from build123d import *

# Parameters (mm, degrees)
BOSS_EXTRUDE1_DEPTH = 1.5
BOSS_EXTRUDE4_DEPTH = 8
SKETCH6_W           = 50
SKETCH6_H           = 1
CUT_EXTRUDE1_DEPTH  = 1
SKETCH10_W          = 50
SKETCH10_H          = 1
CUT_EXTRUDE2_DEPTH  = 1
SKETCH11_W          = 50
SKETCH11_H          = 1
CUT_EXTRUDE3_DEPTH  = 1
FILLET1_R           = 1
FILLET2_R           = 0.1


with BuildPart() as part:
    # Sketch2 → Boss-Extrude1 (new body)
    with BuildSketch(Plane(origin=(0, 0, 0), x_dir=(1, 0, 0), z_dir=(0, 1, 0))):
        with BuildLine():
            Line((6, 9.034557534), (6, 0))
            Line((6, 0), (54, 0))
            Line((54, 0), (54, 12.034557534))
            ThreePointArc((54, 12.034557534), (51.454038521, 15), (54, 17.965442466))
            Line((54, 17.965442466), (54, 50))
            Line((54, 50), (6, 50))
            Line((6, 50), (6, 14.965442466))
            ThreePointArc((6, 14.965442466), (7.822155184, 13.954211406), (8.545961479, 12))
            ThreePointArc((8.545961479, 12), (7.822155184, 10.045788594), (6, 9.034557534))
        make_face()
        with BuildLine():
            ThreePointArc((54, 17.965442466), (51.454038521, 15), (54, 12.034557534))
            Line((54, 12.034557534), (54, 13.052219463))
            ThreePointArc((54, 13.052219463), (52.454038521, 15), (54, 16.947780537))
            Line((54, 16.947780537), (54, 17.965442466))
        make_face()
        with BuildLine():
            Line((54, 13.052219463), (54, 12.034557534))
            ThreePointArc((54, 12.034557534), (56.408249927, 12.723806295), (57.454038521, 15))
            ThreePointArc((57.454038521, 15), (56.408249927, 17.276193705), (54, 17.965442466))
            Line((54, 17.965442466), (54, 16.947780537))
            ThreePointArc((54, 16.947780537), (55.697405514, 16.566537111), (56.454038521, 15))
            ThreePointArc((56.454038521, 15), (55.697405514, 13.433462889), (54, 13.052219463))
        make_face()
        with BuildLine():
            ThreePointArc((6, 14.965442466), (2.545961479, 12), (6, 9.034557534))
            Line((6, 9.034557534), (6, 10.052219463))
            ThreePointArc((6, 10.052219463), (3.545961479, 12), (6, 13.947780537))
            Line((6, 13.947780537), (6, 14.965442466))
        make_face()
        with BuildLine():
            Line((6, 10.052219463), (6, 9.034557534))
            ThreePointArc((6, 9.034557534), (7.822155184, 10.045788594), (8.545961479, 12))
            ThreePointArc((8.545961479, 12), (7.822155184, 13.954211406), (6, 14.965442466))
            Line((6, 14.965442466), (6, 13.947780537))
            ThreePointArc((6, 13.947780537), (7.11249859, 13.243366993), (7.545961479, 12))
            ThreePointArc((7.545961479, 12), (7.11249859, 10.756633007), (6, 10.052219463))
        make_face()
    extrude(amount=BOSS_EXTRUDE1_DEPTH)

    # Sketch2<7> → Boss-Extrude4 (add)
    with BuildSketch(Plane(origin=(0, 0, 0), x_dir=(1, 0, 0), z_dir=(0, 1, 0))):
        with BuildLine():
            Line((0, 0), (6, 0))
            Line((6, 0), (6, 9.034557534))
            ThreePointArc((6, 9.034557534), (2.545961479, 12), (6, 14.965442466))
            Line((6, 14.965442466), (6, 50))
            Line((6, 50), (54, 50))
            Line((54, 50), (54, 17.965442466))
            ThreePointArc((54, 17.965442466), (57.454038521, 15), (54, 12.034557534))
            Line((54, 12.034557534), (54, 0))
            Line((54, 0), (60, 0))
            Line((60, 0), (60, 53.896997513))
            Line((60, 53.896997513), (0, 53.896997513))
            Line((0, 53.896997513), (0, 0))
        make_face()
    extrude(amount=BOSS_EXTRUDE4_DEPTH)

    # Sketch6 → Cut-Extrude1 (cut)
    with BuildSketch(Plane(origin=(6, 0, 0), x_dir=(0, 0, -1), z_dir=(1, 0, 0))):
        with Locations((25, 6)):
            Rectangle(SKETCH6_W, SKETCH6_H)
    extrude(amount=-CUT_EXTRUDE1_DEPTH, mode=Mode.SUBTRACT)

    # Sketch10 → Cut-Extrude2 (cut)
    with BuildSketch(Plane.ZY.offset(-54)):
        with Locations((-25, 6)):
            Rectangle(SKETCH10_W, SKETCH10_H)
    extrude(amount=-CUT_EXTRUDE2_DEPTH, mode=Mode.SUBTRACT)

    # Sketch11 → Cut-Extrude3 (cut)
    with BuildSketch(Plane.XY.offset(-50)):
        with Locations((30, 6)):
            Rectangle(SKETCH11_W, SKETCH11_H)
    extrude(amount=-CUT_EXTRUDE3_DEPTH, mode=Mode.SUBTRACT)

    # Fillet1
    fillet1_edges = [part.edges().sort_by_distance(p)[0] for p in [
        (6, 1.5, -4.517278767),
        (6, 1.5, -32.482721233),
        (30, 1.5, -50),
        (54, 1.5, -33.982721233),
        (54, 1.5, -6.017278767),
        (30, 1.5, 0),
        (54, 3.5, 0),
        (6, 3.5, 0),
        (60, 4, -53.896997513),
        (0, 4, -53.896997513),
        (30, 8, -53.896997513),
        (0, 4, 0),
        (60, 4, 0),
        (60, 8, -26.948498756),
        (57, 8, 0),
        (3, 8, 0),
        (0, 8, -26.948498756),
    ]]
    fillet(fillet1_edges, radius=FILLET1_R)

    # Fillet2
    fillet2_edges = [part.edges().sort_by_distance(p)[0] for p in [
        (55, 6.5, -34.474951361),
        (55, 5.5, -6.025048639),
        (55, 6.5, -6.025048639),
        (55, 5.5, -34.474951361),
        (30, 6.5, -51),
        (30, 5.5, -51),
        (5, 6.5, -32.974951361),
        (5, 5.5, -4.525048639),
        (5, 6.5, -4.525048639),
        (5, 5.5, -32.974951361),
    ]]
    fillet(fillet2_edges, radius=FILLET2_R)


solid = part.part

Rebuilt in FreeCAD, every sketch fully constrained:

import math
import FreeCAD as App
import Part
import Sketcher

V = App.Vector


def edges_at(feature, points):
    """Names of the edges that pass closest to the given points."""
    edges = feature.Shape.Edges
    near = lambda p: min(range(len(edges)), key=lambda i: edges[i].distToShape(Part.Vertex(*p))[0])
    return sorted({f"Edge{near(p) + 1}" for p in points})

doc = App.newDocument("Part")
body = doc.addObject("PartDesign::Body", "Body")

# Sketch on XZ plane
sketch1 = body.newObject("Sketcher::SketchObject", "Sketch")
sketch1.AttachmentSupport = (doc.getObject("XZ_Plane"), [""])
sketch1.MapMode = "FlatFace"
sketch1.addGeometry([
    Part.ArcOfCircle(Part.Circle(V(5.545961, -12, 0), V(0, 0, 1), 3), math.radians(81.295053), math.radians(278.704947)),  # 0
    Part.LineSegment(V(6, -9.034558, 0), V(6, 0, 0)),  # 1
    Part.LineSegment(V(6, 0, 0), V(54, 0, 0)),  # 2
    Part.LineSegment(V(54, 0, 0), V(54, -12.034558, 0)),  # 3
    Part.ArcOfCircle(Part.Circle(V(54.454039, -15, 0), V(0, 0, 1), 3), math.radians(0), math.radians(98.704947)),  # 4
    Part.ArcOfCircle(Part.Circle(V(54.454039, -15, 0), V(0, 0, 1), 3), math.radians(-98.704947), math.radians(0)),  # 5
    Part.LineSegment(V(54, -17.965442, 0), V(54, -50, 0)),  # 6
    Part.LineSegment(V(54, -50, 0), V(6, -50, 0)),  # 7
    Part.LineSegment(V(6, -50, 0), V(6, -14.965442, 0)),  # 8
    Part.ArcOfCircle(Part.Circle(V(5.545961, -12, 0), V(0, 0, 1), 2), math.radians(-76.878354), math.radians(0)),  # 9
    Part.ArcOfCircle(Part.Circle(V(5.545961, -12, 0), V(0, 0, 1), 2), math.radians(0), math.radians(76.878354)),  # 10
    Part.ArcOfCircle(Part.Circle(V(5.545961, -12, 0), V(0, 0, 1), 2), math.radians(76.878354), math.radians(283.121646)),  # 11
    Part.ArcOfCircle(Part.Circle(V(54.454039, -15, 0), V(0, 0, 1), 2), math.radians(0), math.radians(103.121646)),  # 12
    Part.ArcOfCircle(Part.Circle(V(54.454039, -15, 0), V(0, 0, 1), 2), math.radians(103.121646), math.radians(256.878354)),  # 13
    Part.ArcOfCircle(Part.Circle(V(54.454039, -15, 0), V(0, 0, 1), 2), math.radians(-103.121646), math.radians(0)),  # 14
], False)
sketch1.addConstraint([
    Sketcher.Constraint("Coincident", 0, 1, 1, 1),
    Sketcher.Constraint("Coincident", 1, 2, 2, 1),
    Sketcher.Constraint("Coincident", 2, 2, 3, 1),
    Sketcher.Constraint("Coincident", 3, 2, 4, 2),
    Sketcher.Constraint("Tangent", 4, 1, 5, 2),
    Sketcher.Constraint("Coincident", 5, 1, 6, 1),
    Sketcher.Constraint("Coincident", 6, 2, 7, 1),
    Sketcher.Constraint("Coincident", 7, 2, 8, 1),
    Sketcher.Constraint("Coincident", 8, 2, 0, 2),
    Sketcher.Constraint("Tangent", 9, 2, 10, 1),
    Sketcher.Constraint("Tangent", 10, 2, 11, 1),
    Sketcher.Constraint("Tangent", 11, 2, 9, 1),
    Sketcher.Constraint("Tangent", 12, 2, 13, 1),
    Sketcher.Constraint("Tangent", 13, 2, 14, 1),
    Sketcher.Constraint("Tangent", 14, 2, 12, 1),
    Sketcher.Constraint("Vertical", 1),
    Sketcher.Constraint("Horizontal", 2),
    Sketcher.Constraint("Vertical", 3),
    Sketcher.Constraint("Vertical", 6),
    Sketcher.Constraint("Horizontal", 7),
    Sketcher.Constraint("Vertical", 8),
    Sketcher.Constraint("Coincident", 9, 3, 0, 3),
    Sketcher.Constraint("Coincident", 12, 3, 4, 3),
    Sketcher.Constraint("Equal", 0, 4),
    Sketcher.Constraint("Equal", 4, 5),
    Sketcher.Constraint("Equal", 11, 12),
    Sketcher.Constraint("PointOnObject", 1, 2, -1),
    Sketcher.Constraint("Horizontal", 14, 3, 4, 1),
    Sketcher.Constraint("Horizontal", 11, 3, 9, 2),
    Sketcher.Constraint("Horizontal", 4, 1, 14, 2),
    Sketcher.Constraint("Vertical", 3, 2, 5, 1),
    Sketcher.Constraint("Vertical", 1, 2, 7, 2),
    Sketcher.Constraint("Vertical", 8, 2, 10, 2),
    Sketcher.Constraint("Vertical", 10, 2, 11, 2),
    Sketcher.Constraint("Vertical", 6, 2, 12, 2),
    Sketcher.Constraint("Vertical", 12, 2, 13, 2),
    Sketcher.Constraint("Radius", 0, 3.0),
    Sketcher.Constraint("Radius", 9, 2.0),
    Sketcher.Constraint("DistanceX", 2, 1, 2, 2, 48.0),
    Sketcher.Constraint("DistanceY", 0, 3, -1, 1, 12.0),
    Sketcher.Constraint("DistanceY", 4, 3, -1, 1, 15.0),
    Sketcher.Constraint("DistanceX", -1, 1, 0, 1, 6.0),
    Sketcher.Constraint("DistanceY", 6, 2, -1, 1, 50.0),
    Sketcher.Constraint("DistanceY", 1, 1, 1, 2, 9.034558),
    Sketcher.Constraint("DistanceY", 3, 2, 3, 1, 12.034558),
])
pad1 = body.newObject("PartDesign::Pad", "Pad")
pad1.Profile = sketch1
pad1.Length = 1.5
pad1.Reversed = True

# Sketch on XZ plane
sketch2 = body.newObject("Sketcher::SketchObject", "Sketch001")
sketch2.AttachmentSupport = (doc.getObject("XZ_Plane"), [""])
sketch2.MapMode = "FlatFace"
sketch2.addGeometry([
    Part.LineSegment(V(0, 0, 0), V(6, 0, 0)),  # 0
    Part.LineSegment(V(6, 0, 0), V(6, -9.034558, 0)),  # 1
    Part.ArcOfCircle(Part.Circle(V(5.545961, -12, 0), V(0, 0, 1), 3), math.radians(81.295053), math.radians(278.704947)),  # 2
    Part.LineSegment(V(6, -14.965442, 0), V(6, -50, 0)),  # 3
    Part.LineSegment(V(6, -50, 0), V(54, -50, 0)),  # 4
    Part.LineSegment(V(54, -50, 0), V(54, -17.965442, 0)),  # 5
    Part.ArcOfCircle(Part.Circle(V(54.454039, -15, 0), V(0, 0, 1), 3), math.radians(-98.704947), math.radians(98.704947)),  # 6
    Part.LineSegment(V(54, -12.034558, 0), V(54, 0, 0)),  # 7
    Part.LineSegment(V(54, 0, 0), V(60, 0, 0)),  # 8
    Part.LineSegment(V(60, 0, 0), V(60, -53.896998, 0)),  # 9
    Part.LineSegment(V(60, -53.896998, 0), V(0, -53.896998, 0)),  # 10
    Part.LineSegment(V(0, -53.896998, 0), V(0, 0, 0)),  # 11
], False)
sketch2.addConstraint([
    Sketcher.Constraint("Coincident", 0, 2, 1, 1),
    Sketcher.Constraint("Coincident", 1, 2, 2, 1),
    Sketcher.Constraint("Coincident", 2, 2, 3, 1),
    Sketcher.Constraint("Coincident", 3, 2, 4, 1),
    Sketcher.Constraint("Coincident", 4, 2, 5, 1),
    Sketcher.Constraint("Coincident", 5, 2, 6, 1),
    Sketcher.Constraint("Coincident", 6, 2, 7, 1),
    Sketcher.Constraint("Coincident", 7, 2, 8, 1),
    Sketcher.Constraint("Coincident", 8, 2, 9, 1),
    Sketcher.Constraint("Coincident", 9, 2, 10, 1),
    Sketcher.Constraint("Coincident", 10, 2, 11, 1),
    Sketcher.Constraint("Coincident", 11, 2, 0, 1),
    Sketcher.Constraint("Horizontal", 0),
    Sketcher.Constraint("Vertical", 1),
    Sketcher.Constraint("Vertical", 3),
    Sketcher.Constraint("Horizontal", 4),
    Sketcher.Constraint("Vertical", 5),
    Sketcher.Constraint("Vertical", 7),
    Sketcher.Constraint("Horizontal", 8),
    Sketcher.Constraint("Vertical", 9),
    Sketcher.Constraint("Horizontal", 10),
    Sketcher.Constraint("Vertical", 11),
    Sketcher.Constraint("Coincident", 11, 2, -1, 1),
    Sketcher.Constraint("Equal", 2, 6),
    Sketcher.Constraint("PointOnObject", 7, 2, -1),
    Sketcher.Constraint("Vertical", 1, 2, 2, 2),
    Sketcher.Constraint("Vertical", 5, 2, 6, 2),
    Sketcher.Constraint("Equal", 0, 8),
    Sketcher.Constraint("Radius", 2, 3.0),
    Sketcher.Constraint("DistanceX", 0, 1, 0, 2, 6.0),
    Sketcher.Constraint("DistanceX", 4, 1, 4, 2, 48.0),
    Sketcher.Constraint("DistanceY", 2, 3, -1, 1, 12.0),
    Sketcher.Constraint("DistanceY", 6, 3, -1, 1, 15.0),
    Sketcher.Constraint("DistanceY", 3, 2, -1, 1, 50.0),
    Sketcher.Constraint("DistanceY", 5, 2, 2, 2, 3.0),
    Sketcher.Constraint("DistanceY", 1, 2, 1, 1, 9.034558),
    Sketcher.Constraint("DistanceY", 9, 2, 9, 1, 53.896998),
])
pad2 = body.newObject("PartDesign::Pad", "Pad001")
pad2.Profile = sketch2
pad2.Length = 8
pad2.Reversed = True

# Sketch on YZ plane
sketch3 = body.newObject("Sketcher::SketchObject", "Sketch002")
sketch3.AttachmentSupport = (doc.getObject("YZ_Plane"), [""])
sketch3.MapMode = "FlatFace"
sketch3.AttachmentOffset = App.Placement(V(0, 0, 6), App.Rotation())
sketch3.addGeometry([
    Part.LineSegment(V(6.5, 0, 0), V(5.5, 0, 0)),
    Part.LineSegment(V(5.5, 0, 0), V(5.5, -50, 0)),
    Part.LineSegment(V(5.5, -50, 0), V(6.5, -50, 0)),
    Part.LineSegment(V(6.5, -50, 0), V(6.5, 0, 0)),
], False)
sketch3.addConstraint([
    Sketcher.Constraint("Coincident", 0, 2, 1, 1),
    Sketcher.Constraint("Coincident", 1, 2, 2, 1),
    Sketcher.Constraint("Coincident", 2, 2, 3, 1),
    Sketcher.Constraint("Coincident", 3, 2, 0, 1),
    Sketcher.Constraint("Horizontal", 0),
    Sketcher.Constraint("Vertical", 1),
    Sketcher.Constraint("Horizontal", 2),
    Sketcher.Constraint("Vertical", 3),
    Sketcher.Constraint("PointOnObject", 0, 2, -1),
    Sketcher.Constraint("DistanceX", 0, 2, 0, 1, 1.0),
    Sketcher.Constraint("DistanceY", 1, 2, 1, 1, 50.0),
    Sketcher.Constraint("DistanceX", -1, 1, 0, 2, 5.5),
])
pocket1 = body.newObject("PartDesign::Pocket", "Pocket")
pocket1.Profile = sketch3
pocket1.Length = 1

# Sketch on YZ plane
sketch4 = body.newObject("Sketcher::SketchObject", "Sketch003")
sketch4.AttachmentSupport = (doc.getObject("YZ_Plane"), [""])
sketch4.MapMode = "FlatFace"
sketch4.AttachmentOffset = App.Placement(V(0, 0, 54), App.Rotation())
sketch4.addGeometry([
    Part.LineSegment(V(6.5, -50, 0), V(5.5, -50, 0)),
    Part.LineSegment(V(5.5, -50, 0), V(5.5, 0, 0)),
    Part.LineSegment(V(5.5, 0, 0), V(6.5, 0, 0)),
    Part.LineSegment(V(6.5, 0, 0), V(6.5, -50, 0)),
], False)
sketch4.addConstraint([
    Sketcher.Constraint("Coincident", 0, 2, 1, 1),
    Sketcher.Constraint("Coincident", 1, 2, 2, 1),
    Sketcher.Constraint("Coincident", 2, 2, 3, 1),
    Sketcher.Constraint("Coincident", 3, 2, 0, 1),
    Sketcher.Constraint("Horizontal", 0),
    Sketcher.Constraint("Vertical", 1),
    Sketcher.Constraint("Horizontal", 2),
    Sketcher.Constraint("Vertical", 3),
    Sketcher.Constraint("PointOnObject", 1, 2, -1),
    Sketcher.Constraint("DistanceX", 0, 2, 0, 1, 1.0),
    Sketcher.Constraint("DistanceY", 1, 1, 1, 2, 50.0),
    Sketcher.Constraint("DistanceX", -1, 1, 0, 2, 5.5),
])
pocket2 = body.newObject("PartDesign::Pocket", "Pocket001")
pocket2.Profile = sketch4
pocket2.Length = 1
pocket2.Reversed = True

# Sketch on XY plane
sketch5 = body.newObject("Sketcher::SketchObject", "Sketch004")
sketch5.AttachmentSupport = (doc.getObject("XY_Plane"), [""])
sketch5.MapMode = "FlatFace"
sketch5.AttachmentOffset = App.Placement(V(0, 0, -50), App.Rotation())
sketch5.addGeometry([
    Part.LineSegment(V(5, 6.5, 0), V(5, 5.5, 0)),
    Part.LineSegment(V(5, 5.5, 0), V(55, 5.5, 0)),
    Part.LineSegment(V(55, 5.5, 0), V(55, 6.5, 0)),
    Part.LineSegment(V(55, 6.5, 0), V(5, 6.5, 0)),
], False)
sketch5.addConstraint([
    Sketcher.Constraint("Coincident", 0, 2, 1, 1),
    Sketcher.Constraint("Coincident", 1, 2, 2, 1),
    Sketcher.Constraint("Coincident", 2, 2, 3, 1),
    Sketcher.Constraint("Coincident", 3, 2, 0, 1),
    Sketcher.Constraint("Vertical", 0),
    Sketcher.Constraint("Horizontal", 1),
    Sketcher.Constraint("Vertical", 2),
    Sketcher.Constraint("Horizontal", 3),
    Sketcher.Constraint("DistanceX", 1, 1, 1, 2, 50.0),
    Sketcher.Constraint("DistanceY", 0, 2, 0, 1, 1.0),
    Sketcher.Constraint("DistanceX", -1, 1, 0, 2, 5.0),
    Sketcher.Constraint("DistanceY", -1, 1, 0, 2, 5.5),
])
pocket3 = body.newObject("PartDesign::Pocket", "Pocket002")
pocket3.Profile = sketch5
pocket3.Length = 1
doc.recompute()

fillet = body.newObject("PartDesign::Fillet", "Fillet")
fillet.Base = (pocket3, edges_at(pocket3, [
    (6, 1.5, -4.517),
    (6, 1.5, -32.483),
    (30, 1.5, -50),
    (54, 1.5, -33.983),
    (54, 1.5, -6.017),
    (30, 1.5, 0),
    (54, 3.5, 0),
    (6, 3.5, 0),
    (60, 4, -53.897),
    (0, 4, -53.897),
    (30, 8, -53.897),
    (0, 4, 0),
    (60, 4, 0),
    (60, 8, -26.948),
    (57, 8, 0),
    (3, 8, 0),
    (0, 8, -26.948),
]))
fillet.Radius = 1
doc.recompute()

fillet2 = body.newObject("PartDesign::Fillet", "Fillet001")
fillet2.Base = (fillet, edges_at(fillet, [
    (55, 6.5, -34.475),
    (55, 5.5, -6.025),
    (55, 6.5, -6.025),
    (55, 5.5, -34.475),
    (30, 6.5, -51),
    (30, 5.5, -51),
    (5, 6.5, -32.975),
    (5, 5.5, -4.525),
    (5, 6.5, -4.525),
    (5, 5.5, -32.975),
]))
fillet2.Radius = 0.1

doc.recompute()
